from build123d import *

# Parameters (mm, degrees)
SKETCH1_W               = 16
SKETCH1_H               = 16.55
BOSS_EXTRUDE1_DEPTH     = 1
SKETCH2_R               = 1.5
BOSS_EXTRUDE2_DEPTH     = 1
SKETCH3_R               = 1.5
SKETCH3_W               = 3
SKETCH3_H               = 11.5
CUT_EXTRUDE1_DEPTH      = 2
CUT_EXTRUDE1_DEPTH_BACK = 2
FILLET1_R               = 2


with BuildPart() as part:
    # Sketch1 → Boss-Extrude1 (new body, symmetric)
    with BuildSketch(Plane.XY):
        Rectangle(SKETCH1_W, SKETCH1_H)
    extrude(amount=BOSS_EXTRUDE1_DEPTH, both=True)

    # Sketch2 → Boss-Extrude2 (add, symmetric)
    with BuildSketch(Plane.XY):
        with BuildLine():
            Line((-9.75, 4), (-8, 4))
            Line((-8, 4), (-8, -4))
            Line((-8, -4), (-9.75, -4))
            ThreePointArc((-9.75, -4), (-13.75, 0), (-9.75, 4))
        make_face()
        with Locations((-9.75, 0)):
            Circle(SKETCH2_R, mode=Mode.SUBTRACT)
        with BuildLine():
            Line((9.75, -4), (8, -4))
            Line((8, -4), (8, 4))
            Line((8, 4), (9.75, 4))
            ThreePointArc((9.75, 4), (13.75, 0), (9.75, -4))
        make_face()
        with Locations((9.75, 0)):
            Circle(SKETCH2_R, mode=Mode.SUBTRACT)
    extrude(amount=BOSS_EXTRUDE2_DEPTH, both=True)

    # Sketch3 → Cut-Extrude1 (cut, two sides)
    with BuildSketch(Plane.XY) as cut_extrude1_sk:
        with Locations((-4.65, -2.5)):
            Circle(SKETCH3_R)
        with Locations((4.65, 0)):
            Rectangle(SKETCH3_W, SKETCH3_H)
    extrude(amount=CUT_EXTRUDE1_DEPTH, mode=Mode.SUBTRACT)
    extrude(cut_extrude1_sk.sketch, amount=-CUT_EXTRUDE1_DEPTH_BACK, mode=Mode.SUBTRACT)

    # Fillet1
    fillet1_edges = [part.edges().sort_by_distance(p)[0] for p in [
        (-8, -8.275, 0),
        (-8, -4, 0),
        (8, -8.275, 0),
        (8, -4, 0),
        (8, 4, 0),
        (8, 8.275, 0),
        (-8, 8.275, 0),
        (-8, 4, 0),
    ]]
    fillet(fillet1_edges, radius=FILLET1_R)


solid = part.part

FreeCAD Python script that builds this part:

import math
import FreeCAD as App
import Part
import Sketcher

V = App.Vector
Q = App.Units.Quantity


def edges_at(feature, points):
    """Names of the edges that pass closest to the given points."""
    edges = feature.Shape.Edges
    near = lambda p: min(range(len(edges)), key=lambda i: edges[i].distToShape(Part.Vertex(*p))[0])
    return sorted({f"Edge{near(p) + 1}" for p in points})

doc = App.newDocument("Part")
body = doc.addObject("PartDesign::Body", "Body")

sketch1 = body.newObject("Sketcher::SketchObject", "Sketch")
sketch1.AttachmentSupport = (doc.getObject("XY_Plane"), [""])
sketch1.MapMode = "FlatFace"
sketch1.addGeometry(Part.LineSegment(V(-8, 8.275, 0), V(-8, -8.275, 0)), False)
sketch1.addGeometry(Part.LineSegment(V(-8, -8.275, 0), V(8, -8.275, 0)), False)
sketch1.addGeometry(Part.LineSegment(V(8, -8.275, 0), V(8, 8.275, 0)), False)
sketch1.addGeometry(Part.LineSegment(V(8, 8.275, 0), V(-8, 8.275, 0)), False)
sketch1.addConstraint(Sketcher.Constraint("Coincident", 0, 2, 1, 1))
sketch1.addConstraint(Sketcher.Constraint("Coincident", 1, 2, 2, 1))
sketch1.addConstraint(Sketcher.Constraint("Coincident", 2, 2, 3, 1))
sketch1.addConstraint(Sketcher.Constraint("Coincident", 3, 2, 0, 1))
sketch1.addConstraint(Sketcher.Constraint("Vertical", 0))
sketch1.addConstraint(Sketcher.Constraint("Horizontal", 1))
sketch1.addConstraint(Sketcher.Constraint("Vertical", 2))
sketch1.addConstraint(Sketcher.Constraint("Horizontal", 3))
sketch1.addConstraint(Sketcher.Constraint("Symmetric", 0, 2, 2, 2, -1, 1))
sketch1.addConstraint(Sketcher.Constraint("DistanceX", 1, 1, 1, 2, Q("16 mm")))
sketch1.addConstraint(Sketcher.Constraint("DistanceY", 0, 2, 0, 1, Q("16.55 mm")))
pad1 = body.newObject("PartDesign::Pad", "Pad")
pad1.Profile = sketch1
pad1.Length = 2
pad1.Midplane = True

sketch2 = body.newObject("Sketcher::SketchObject", "Sketch001")
sketch2.AttachmentSupport = (doc.getObject("XY_Plane"), [""])
sketch2.MapMode = "FlatFace"
sketch2.addGeometry(Part.LineSegment(V(-8, 4, 0), V(-9.75, 4, 0)), False)
sketch2.addGeometry(Part.ArcOfCircle(Part.Circle(V(-9.75, 0, 0), V(0, 0, 1), 4), math.radians(90), math.radians(270)), False)
sketch2.addGeometry(Part.LineSegment(V(-9.75, -4, 0), V(-8, -4, 0)), False)
sketch2.addGeometry(Part.LineSegment(V(-8, -4, 0), V(-8, 4, 0)), False)
sketch2.addGeometry(Part.Circle(V(-9.75, 0, 0), V(0, 0, 1), 1.5), False)
sketch2.addGeometry(Part.LineSegment(V(8, -4, 0), V(9.75, -4, 0)), False)
sketch2.addGeometry(Part.ArcOfCircle(Part.Circle(V(9.75, 0, 0), V(0, 0, 1), 4), math.radians(-90), math.radians(90)), False)
sketch2.addGeometry(Part.LineSegment(V(9.75, 4, 0), V(8, 4, 0)), False)
sketch2.addGeometry(Part.LineSegment(V(8, 4, 0), V(8, -4, 0)), False)
sketch2.addGeometry(Part.Circle(V(9.75, 0, 0), V(0, 0, 1), 1.5), False)
sketch2.addConstraint(Sketcher.Constraint("Tangent", 0, 2, 1, 1))
sketch2.addConstraint(Sketcher.Constraint("Tangent", 1, 2, 2, 1))
sketch2.addConstraint(Sketcher.Constraint("Coincident", 2, 2, 3, 1))
sketch2.addConstraint(Sketcher.Constraint("Coincident", 3, 2, 0, 1))
sketch2.addConstraint(Sketcher.Constraint("Tangent", 5, 2, 6, 1))
sketch2.addConstraint(Sketcher.Constraint("Tangent", 6, 2, 7, 1))
sketch2.addConstraint(Sketcher.Constraint("Coincident", 7, 2, 8, 1))
sketch2.addConstraint(Sketcher.Constraint("Coincident", 8, 2, 5, 1))
sketch2.addConstraint(Sketcher.Constraint("Horizontal", 0))
sketch2.addConstraint(Sketcher.Constraint("Horizontal", 2))
sketch2.addConstraint(Sketcher.Constraint("Vertical", 3))
sketch2.addConstraint(Sketcher.Constraint("Horizontal", 5))
sketch2.addConstraint(Sketcher.Constraint("Horizontal", 7))
sketch2.addConstraint(Sketcher.Constraint("Vertical", 8))
sketch2.addConstraint(Sketcher.Constraint("Coincident", 4, 3, 1, 3))
sketch2.addConstraint(Sketcher.Constraint("Coincident", 9, 3, 6, 3))
sketch2.addConstraint(Sketcher.Constraint("Equal", 1, 6))
sketch2.addConstraint(Sketcher.Constraint("Equal", 4, 9))
sketch2.addConstraint(Sketcher.Constraint("Symmetric", 1, 3, 6, 3, -1, 1))
sketch2.addConstraint(Sketcher.Constraint("Symmetric", 3, 2, 7, 2, -2))
sketch2.addConstraint(Sketcher.Constraint("Diameter", 4, Q("3 mm")))
sketch2.addConstraint(Sketcher.Constraint("Radius", 1, Q("4 mm")))
sketch2.addConstraint(Sketcher.Constraint("DistanceX", 2, 2, -1, 1, Q("8 mm")))
sketch2.addConstraint(Sketcher.Constraint("DistanceX", 0, 2, 0, 1, Q("1.75 mm")))
pad2 = body.newObject("PartDesign::Pad", "Pad001")
pad2.Profile = sketch2
pad2.Length = 2
pad2.Midplane = True

sketch3 = body.newObject("Sketcher::SketchObject", "Sketch002")
sketch3.AttachmentSupport = (doc.getObject("XY_Plane"), [""])
sketch3.MapMode = "FlatFace"
sketch3.addGeometry(Part.Circle(V(-4.65, -2.5, 0), V(0, 0, 1), 1.5), False)
sketch3.addGeometry(Part.LineSegment(V(3.15, 5.75, 0), V(3.15, -5.75, 0)), False)
sketch3.addGeometry(Part.LineSegment(V(3.15, -5.75, 0), V(6.15, -5.75, 0)), False)
sketch3.addGeometry(Part.LineSegment(V(6.15, -5.75, 0), V(6.15, 5.75, 0)), False)
sketch3.addGeometry(Part.LineSegment(V(6.15, 5.75, 0), V(3.15, 5.75, 0)), False)
sketch3.addConstraint(Sketcher.Constraint("Coincident", 1, 2, 2, 1))
sketch3.addConstraint(Sketcher.Constraint("Coincident", 2, 2, 3, 1))
sketch3.addConstraint(Sketcher.Constraint("Coincident", 3, 2, 4, 1))
sketch3.addConstraint(Sketcher.Constraint("Coincident", 4, 2, 1, 1))
sketch3.addConstraint(Sketcher.Constraint("Vertical", 1))
sketch3.addConstraint(Sketcher.Constraint("Horizontal", 2))
sketch3.addConstraint(Sketcher.Constraint("Vertical", 3))
sketch3.addConstraint(Sketcher.Constraint("Horizontal", 4))
sketch3.addConstraint(Sketcher.Constraint("Diameter", 0, Q("3 mm")))
sketch3.addConstraint(Sketcher.Constraint("DistanceX", 2, 1, 2, 2, Q("3 mm")))
sketch3.addConstraint(Sketcher.Constraint("DistanceY", 1, 2, 1, 1, Q("11.5 mm")))
sketch3.addConstraint(Sketcher.Constraint("DistanceY", 0, 3, -1, 1, Q("2.5 mm")))
sketch3.addConstraint(Sketcher.Constraint("DistanceX", 0, 3, 1, 2, Q("7.8 mm")))
sketch3.addConstraint(Sketcher.Constraint("DistanceX", 0, 3, -1, 1, Q("4.65 mm")))
sketch3.addConstraint(Sketcher.Constraint("DistanceY", 1, 2, -1, 1, Q("5.75 mm")))
pocket1 = body.newObject("PartDesign::Pocket", "Pocket")
pocket1.Profile = sketch3
pocket1.Type = "ThroughAll"
pocket1.Midplane = True
doc.recompute()

fillet = body.newObject("PartDesign::Fillet", "Fillet")
fillet.Base = (pocket1, edges_at(pocket1, [
    (-8, -8.275, 0),
    (-8, -4, 0),
    (8, -8.275, 0),
    (8, -4, 0),
    (8, 4, 0),
    (8, 8.275, 0),
    (-8, 8.275, 0),
    (-8, 4, 0),
]))
fillet.Radius = 2

doc.recompute()
